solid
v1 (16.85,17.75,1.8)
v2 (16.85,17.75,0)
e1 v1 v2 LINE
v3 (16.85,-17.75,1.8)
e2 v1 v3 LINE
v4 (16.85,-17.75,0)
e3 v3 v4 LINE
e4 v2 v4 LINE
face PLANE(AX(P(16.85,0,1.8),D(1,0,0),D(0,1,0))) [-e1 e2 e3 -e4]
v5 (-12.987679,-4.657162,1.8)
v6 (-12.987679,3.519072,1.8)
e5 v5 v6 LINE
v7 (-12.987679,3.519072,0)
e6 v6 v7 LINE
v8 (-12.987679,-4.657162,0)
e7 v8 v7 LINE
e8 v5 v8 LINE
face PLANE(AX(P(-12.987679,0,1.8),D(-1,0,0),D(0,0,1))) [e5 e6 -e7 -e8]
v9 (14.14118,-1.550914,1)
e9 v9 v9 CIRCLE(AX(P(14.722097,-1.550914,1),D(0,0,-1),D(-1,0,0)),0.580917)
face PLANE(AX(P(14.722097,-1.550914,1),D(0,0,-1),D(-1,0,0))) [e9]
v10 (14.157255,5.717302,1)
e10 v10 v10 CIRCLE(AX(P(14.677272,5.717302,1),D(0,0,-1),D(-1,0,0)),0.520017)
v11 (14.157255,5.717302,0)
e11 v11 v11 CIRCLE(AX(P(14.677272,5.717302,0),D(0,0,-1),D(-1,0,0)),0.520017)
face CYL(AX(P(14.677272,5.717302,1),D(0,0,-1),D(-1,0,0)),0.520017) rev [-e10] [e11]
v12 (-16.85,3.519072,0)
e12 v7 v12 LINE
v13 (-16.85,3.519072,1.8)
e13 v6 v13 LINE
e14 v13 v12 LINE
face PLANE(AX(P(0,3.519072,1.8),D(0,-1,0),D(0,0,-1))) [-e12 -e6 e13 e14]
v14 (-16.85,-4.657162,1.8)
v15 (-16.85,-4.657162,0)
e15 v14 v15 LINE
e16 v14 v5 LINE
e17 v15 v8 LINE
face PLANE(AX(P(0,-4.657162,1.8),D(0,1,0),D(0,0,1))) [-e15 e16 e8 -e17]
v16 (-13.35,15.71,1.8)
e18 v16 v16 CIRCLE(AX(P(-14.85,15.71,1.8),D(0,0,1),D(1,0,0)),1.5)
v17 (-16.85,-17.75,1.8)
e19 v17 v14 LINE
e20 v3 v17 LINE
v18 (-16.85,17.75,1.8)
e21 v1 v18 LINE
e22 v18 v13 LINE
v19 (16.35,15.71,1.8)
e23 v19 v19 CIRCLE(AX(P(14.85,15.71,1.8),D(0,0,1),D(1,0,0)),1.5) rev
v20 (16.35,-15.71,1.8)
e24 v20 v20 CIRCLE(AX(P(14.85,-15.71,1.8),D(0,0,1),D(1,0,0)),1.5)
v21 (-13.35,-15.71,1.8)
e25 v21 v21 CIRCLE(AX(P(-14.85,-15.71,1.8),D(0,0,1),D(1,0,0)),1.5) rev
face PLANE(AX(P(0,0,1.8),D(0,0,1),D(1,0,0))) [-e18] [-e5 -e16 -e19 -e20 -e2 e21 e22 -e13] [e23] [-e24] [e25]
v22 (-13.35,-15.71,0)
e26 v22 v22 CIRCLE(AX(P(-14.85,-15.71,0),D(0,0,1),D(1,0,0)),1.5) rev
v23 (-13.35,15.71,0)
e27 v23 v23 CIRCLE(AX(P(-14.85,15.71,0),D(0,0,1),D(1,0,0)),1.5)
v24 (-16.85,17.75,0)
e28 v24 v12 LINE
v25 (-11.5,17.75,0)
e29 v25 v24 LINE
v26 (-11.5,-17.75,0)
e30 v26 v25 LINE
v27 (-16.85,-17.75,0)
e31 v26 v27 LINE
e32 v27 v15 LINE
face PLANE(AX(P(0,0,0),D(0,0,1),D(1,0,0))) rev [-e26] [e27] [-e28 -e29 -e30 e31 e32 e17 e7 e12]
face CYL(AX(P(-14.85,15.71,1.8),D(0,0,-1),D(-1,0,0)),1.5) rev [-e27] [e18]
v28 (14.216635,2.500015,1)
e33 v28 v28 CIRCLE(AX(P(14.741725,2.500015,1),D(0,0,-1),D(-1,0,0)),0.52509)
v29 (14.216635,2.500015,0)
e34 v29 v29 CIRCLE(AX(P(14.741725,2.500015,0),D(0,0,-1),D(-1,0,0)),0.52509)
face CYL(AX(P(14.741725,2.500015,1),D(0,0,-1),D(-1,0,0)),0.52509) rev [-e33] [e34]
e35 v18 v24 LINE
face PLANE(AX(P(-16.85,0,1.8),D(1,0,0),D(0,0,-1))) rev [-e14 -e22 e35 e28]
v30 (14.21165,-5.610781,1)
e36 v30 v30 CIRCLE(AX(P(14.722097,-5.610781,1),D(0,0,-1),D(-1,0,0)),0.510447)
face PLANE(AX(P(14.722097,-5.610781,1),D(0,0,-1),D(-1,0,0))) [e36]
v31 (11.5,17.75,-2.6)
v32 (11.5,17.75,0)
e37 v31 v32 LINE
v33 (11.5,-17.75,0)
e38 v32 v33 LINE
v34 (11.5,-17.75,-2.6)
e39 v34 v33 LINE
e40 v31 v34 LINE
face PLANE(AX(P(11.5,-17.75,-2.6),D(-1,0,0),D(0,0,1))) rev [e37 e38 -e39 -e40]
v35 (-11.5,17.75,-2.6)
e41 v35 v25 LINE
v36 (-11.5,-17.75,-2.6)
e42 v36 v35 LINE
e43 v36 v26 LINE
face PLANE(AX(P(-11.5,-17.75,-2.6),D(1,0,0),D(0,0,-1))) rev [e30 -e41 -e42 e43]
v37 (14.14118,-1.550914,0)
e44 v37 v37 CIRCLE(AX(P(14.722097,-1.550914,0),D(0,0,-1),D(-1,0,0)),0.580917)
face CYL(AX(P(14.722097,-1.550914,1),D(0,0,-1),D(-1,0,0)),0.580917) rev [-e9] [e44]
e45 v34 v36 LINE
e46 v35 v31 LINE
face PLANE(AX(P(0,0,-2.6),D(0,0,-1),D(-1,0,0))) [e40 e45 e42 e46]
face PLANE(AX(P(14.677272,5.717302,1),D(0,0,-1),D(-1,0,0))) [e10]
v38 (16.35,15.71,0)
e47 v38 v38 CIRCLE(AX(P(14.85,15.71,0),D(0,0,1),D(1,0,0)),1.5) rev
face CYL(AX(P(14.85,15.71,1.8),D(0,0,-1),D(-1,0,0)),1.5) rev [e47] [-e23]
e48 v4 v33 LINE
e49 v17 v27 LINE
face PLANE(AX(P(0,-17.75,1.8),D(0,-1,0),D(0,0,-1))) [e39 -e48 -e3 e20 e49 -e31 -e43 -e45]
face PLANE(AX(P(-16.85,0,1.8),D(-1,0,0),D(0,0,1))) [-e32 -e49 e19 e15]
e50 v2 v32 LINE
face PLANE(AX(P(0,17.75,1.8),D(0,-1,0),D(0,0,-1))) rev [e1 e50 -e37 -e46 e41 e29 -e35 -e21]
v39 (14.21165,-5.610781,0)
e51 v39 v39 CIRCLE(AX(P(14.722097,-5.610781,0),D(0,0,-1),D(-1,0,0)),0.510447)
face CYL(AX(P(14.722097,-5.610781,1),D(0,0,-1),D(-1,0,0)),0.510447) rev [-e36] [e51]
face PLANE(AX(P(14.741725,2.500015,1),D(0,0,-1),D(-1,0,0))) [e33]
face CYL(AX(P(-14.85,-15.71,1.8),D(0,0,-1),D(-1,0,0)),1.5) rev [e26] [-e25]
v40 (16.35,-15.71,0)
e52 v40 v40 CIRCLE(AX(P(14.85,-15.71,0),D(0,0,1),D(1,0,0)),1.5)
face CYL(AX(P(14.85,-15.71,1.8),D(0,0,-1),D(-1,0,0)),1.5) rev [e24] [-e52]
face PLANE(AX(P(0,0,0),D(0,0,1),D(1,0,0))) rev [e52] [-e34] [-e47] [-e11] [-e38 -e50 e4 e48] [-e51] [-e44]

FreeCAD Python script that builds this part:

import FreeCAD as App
import Part
import Sketcher
Q = App.Units.Quantity

doc = App.newDocument("Part")
body = doc.addObject("PartDesign::Body", "Body")

# Sketch on XY plane
sketch1 = body.newObject("Sketcher::SketchObject", "Sketch")
sketch1.AttachmentSupport = (doc.getObject("XY_Plane"), [""])
sketch1.MapMode = "FlatFace"
sketch1.addGeometry([
    Part.LineSegment(App.Vector(16.9, -17.8, 0), App.Vector(16.9, 17.8, 0)),  # 0
    Part.LineSegment(App.Vector(16.9, 17.8, 0), App.Vector(-16.9, 17.8, 0)),  # 1
    Part.LineSegment(App.Vector(-16.9, 17.8, 0), App.Vector(-16.9, 3.5, 0)),  # 2
    Part.LineSegment(App.Vector(-16.9, 3.5, 0), App.Vector(-13, 3.5, 0)),  # 3
    Part.LineSegment(App.Vector(-13, 3.5, 0), App.Vector(-13, -4.7, 0)),  # 4
    Part.LineSegment(App.Vector(-13, -4.7, 0), App.Vector(-16.9, -4.7, 0)),  # 5
    Part.LineSegment(App.Vector(-16.9, -4.7, 0), App.Vector(-16.9, -17.8, 0)),  # 6
    Part.LineSegment(App.Vector(-16.9, -17.8, 0), App.Vector(16.9, -17.8, 0)),  # 7
    Part.Circle(App.Vector(14.8, 15.7, 0), App.Vector(0, 0, 1), 1.5),  # 8
    Part.Circle(App.Vector(14.8, -15.7, 0), App.Vector(0, 0, 1), 1.5),  # 9
    Part.Circle(App.Vector(-14.8, 15.7, 0), App.Vector(0, 0, 1), 1.5),  # 10
    Part.Circle(App.Vector(-14.8, -15.7, 0), App.Vector(0, 0, 1), 1.5),  # 11
], False)
sketch1.addConstraint([
    Sketcher.Constraint("Coincident", 0, 2, 1, 1),
    Sketcher.Constraint("Coincident", 1, 2, 2, 1),
    Sketcher.Constraint("Coincident", 2, 2, 3, 1),
    Sketcher.Constraint("Coincident", 3, 2, 4, 1),
    Sketcher.Constraint("Coincident", 4, 2, 5, 1),
    Sketcher.Constraint("Coincident", 5, 2, 6, 1),
    Sketcher.Constraint("Coincident", 6, 2, 7, 1),
    Sketcher.Constraint("Coincident", 7, 2, 0, 1),
    Sketcher.Constraint("Vertical", 0),
    Sketcher.Constraint("Horizontal", 1),
    Sketcher.Constraint("Vertical", 2),
    Sketcher.Constraint("Horizontal", 3),
    Sketcher.Constraint("Vertical", 4),
    Sketcher.Constraint("Horizontal", 5),
    Sketcher.Constraint("Vertical", 6),
    Sketcher.Constraint("Horizontal", 7),
    Sketcher.Constraint("Equal", 8, 9),
    Sketcher.Constraint("Equal", 9, 10),
    Sketcher.Constraint("Equal", 10, 11),
    Sketcher.Constraint("Symmetric", 9, 3, 10, 3, -1, 1),
    Sketcher.Constraint("Symmetric", 8, 3, 11, 3, -1, 1),
    Sketcher.Constraint("Symmetric", 0, 2, 6, 2, -1, 1),
    Sketcher.Constraint("Symmetric", 8, 3, 10, 3, -2),
    Sketcher.Constraint("Vertical", 2, 2, 5, 2),
    Sketcher.Constraint("Diameter", 8, Q("3 mm")),
    Sketcher.Constraint("DistanceX", 1, 2, 1, 1, Q("33.7 mm")),
    Sketcher.Constraint("DistanceY", 0, 1, 0, 2, Q("35.5 mm")),
    Sketcher.Constraint("DistanceX", 8, 3, 0, 2, Q("2 mm")),
    Sketcher.Constraint("DistanceY", -1, 1, 8, 3, Q("15.71 mm")),
    Sketcher.Constraint("DistanceX", 3, 1, 3, 2, Q("3.862321 mm")),
    Sketcher.Constraint("DistanceY", 6, 2, 6, 1, Q("13.092838 mm")),
    Sketcher.Constraint("DistanceY", 2, 2, 2, 1, Q("14.230928 mm")),
])
pad1 = body.newObject("PartDesign::Pad", "Pad")
pad1.Profile = sketch1
pad1.Length = 1.8

# Sketch on XY plane
sketch2 = body.newObject("Sketcher::SketchObject", "Sketch001")
sketch2.AttachmentSupport = (doc.getObject("XY_Plane"), [""])
sketch2.MapMode = "FlatFace"
sketch2.addGeometry([
    Part.LineSegment(App.Vector(12, 18, 0), App.Vector(12, -18, 0)),
    Part.LineSegment(App.Vector(12, -18, 0), App.Vector(-12, -18, 0)),
    Part.LineSegment(App.Vector(-12, -18, 0), App.Vector(-12, 18, 0)),
    Part.LineSegment(App.Vector(-12, 18, 0), App.Vector(12, 18, 0)),
], False)
sketch2.addConstraint([
    Sketcher.Constraint("Coincident", 0, 2, 1, 1),
    Sketcher.Constraint("Coincident", 1, 2, 2, 1),
    Sketcher.Constraint("Coincident", 2, 2, 3, 1),
    Sketcher.Constraint("Coincident", 3, 2, 0, 1),
    Sketcher.Constraint("Vertical", 0),
    Sketcher.Constraint("Horizontal", 1),
    Sketcher.Constraint("Vertical", 2),
    Sketcher.Constraint("Horizontal", 3),
    Sketcher.Constraint("Symmetric", 0, 2, 2, 2, -1, 1),
    Sketcher.Constraint("DistanceX", 1, 2, 1, 1, Q("23 mm")),
    Sketcher.Constraint("DistanceY", 0, 2, 0, 1, Q("35.5 mm")),
])
pad2 = body.newObject("PartDesign::Pad", "Pad001")
pad2.Profile = sketch2
pad2.Length = 2.6
pad2.Reversed = True

# Sketch on XY plane
sketch3 = body.newObject("Sketcher::SketchObject", "Sketch002")
sketch3.AttachmentSupport = (doc.getObject("XY_Plane"), [""])
sketch3.MapMode = "FlatFace"
sketch3.addGeometry([
    Part.Circle(App.Vector(14.7, -5.6, 0), App.Vector(0, 0, 1), 0.5),
    Part.Circle(App.Vector(14.7, -1.6, 0), App.Vector(0, 0, 1), 0.6),
    Part.Circle(App.Vector(14.7, 2.5, 0), App.Vector(0, 0, 1), 0.5),
], False)
sketch3.addConstraint([
    Sketcher.Constraint("Vertical", 0, 3, 1, 3),
    Sketcher.Constraint("Diameter", 2, Q("1.05018 mm")),
    Sketcher.Constraint("Diameter", 0, Q("1.020895 mm")),
    Sketcher.Constraint("Diameter", 1, Q("1.161834 mm")),
    Sketcher.Constraint("DistanceY", 0, 3, -1, 1, Q("5.610781 mm")),
    Sketcher.Constraint("DistanceY", 1, 3, 2, 3, Q("4.050929 mm")),
    Sketcher.Constraint("DistanceX", -1, 1, 0, 3, Q("14.722097 mm")),
    Sketcher.Constraint("DistanceY", 1, 3, -1, 1, Q("1.550914 mm")),
    Sketcher.Constraint("DistanceX", -1, 1, 2, 3, Q("14.741725 mm")),
])
pocket1 = body.newObject("PartDesign::Pocket", "Pocket")
pocket1.Profile = sketch3
pocket1.Length = 1
pocket1.Reversed = True

# Sketch on XY plane
sketch4 = body.newObject("Sketcher::SketchObject", "Sketch003")
sketch4.AttachmentSupport = (doc.getObject("XY_Plane"), [""])
sketch4.MapMode = "FlatFace"
sketch4.addGeometry(Part.Circle(App.Vector(14.7, 5.7, 0), App.Vector(0, 0, 1), 0.5), False)
sketch4.addConstraint([
    Sketcher.Constraint("Diameter", 0, Q("1.040034 mm")),
    Sketcher.Constraint("DistanceY", -1, 1, 0, 3, Q("5.717302 mm")),
    Sketcher.Constraint("DistanceX", -1, 1, 0, 3, Q("14.677272 mm")),
])
pocket2 = body.newObject("PartDesign::Pocket", "Pocket001")
pocket2.Profile = sketch4
pocket2.Length = 1
pocket2.Reversed = True

doc.recompute()
